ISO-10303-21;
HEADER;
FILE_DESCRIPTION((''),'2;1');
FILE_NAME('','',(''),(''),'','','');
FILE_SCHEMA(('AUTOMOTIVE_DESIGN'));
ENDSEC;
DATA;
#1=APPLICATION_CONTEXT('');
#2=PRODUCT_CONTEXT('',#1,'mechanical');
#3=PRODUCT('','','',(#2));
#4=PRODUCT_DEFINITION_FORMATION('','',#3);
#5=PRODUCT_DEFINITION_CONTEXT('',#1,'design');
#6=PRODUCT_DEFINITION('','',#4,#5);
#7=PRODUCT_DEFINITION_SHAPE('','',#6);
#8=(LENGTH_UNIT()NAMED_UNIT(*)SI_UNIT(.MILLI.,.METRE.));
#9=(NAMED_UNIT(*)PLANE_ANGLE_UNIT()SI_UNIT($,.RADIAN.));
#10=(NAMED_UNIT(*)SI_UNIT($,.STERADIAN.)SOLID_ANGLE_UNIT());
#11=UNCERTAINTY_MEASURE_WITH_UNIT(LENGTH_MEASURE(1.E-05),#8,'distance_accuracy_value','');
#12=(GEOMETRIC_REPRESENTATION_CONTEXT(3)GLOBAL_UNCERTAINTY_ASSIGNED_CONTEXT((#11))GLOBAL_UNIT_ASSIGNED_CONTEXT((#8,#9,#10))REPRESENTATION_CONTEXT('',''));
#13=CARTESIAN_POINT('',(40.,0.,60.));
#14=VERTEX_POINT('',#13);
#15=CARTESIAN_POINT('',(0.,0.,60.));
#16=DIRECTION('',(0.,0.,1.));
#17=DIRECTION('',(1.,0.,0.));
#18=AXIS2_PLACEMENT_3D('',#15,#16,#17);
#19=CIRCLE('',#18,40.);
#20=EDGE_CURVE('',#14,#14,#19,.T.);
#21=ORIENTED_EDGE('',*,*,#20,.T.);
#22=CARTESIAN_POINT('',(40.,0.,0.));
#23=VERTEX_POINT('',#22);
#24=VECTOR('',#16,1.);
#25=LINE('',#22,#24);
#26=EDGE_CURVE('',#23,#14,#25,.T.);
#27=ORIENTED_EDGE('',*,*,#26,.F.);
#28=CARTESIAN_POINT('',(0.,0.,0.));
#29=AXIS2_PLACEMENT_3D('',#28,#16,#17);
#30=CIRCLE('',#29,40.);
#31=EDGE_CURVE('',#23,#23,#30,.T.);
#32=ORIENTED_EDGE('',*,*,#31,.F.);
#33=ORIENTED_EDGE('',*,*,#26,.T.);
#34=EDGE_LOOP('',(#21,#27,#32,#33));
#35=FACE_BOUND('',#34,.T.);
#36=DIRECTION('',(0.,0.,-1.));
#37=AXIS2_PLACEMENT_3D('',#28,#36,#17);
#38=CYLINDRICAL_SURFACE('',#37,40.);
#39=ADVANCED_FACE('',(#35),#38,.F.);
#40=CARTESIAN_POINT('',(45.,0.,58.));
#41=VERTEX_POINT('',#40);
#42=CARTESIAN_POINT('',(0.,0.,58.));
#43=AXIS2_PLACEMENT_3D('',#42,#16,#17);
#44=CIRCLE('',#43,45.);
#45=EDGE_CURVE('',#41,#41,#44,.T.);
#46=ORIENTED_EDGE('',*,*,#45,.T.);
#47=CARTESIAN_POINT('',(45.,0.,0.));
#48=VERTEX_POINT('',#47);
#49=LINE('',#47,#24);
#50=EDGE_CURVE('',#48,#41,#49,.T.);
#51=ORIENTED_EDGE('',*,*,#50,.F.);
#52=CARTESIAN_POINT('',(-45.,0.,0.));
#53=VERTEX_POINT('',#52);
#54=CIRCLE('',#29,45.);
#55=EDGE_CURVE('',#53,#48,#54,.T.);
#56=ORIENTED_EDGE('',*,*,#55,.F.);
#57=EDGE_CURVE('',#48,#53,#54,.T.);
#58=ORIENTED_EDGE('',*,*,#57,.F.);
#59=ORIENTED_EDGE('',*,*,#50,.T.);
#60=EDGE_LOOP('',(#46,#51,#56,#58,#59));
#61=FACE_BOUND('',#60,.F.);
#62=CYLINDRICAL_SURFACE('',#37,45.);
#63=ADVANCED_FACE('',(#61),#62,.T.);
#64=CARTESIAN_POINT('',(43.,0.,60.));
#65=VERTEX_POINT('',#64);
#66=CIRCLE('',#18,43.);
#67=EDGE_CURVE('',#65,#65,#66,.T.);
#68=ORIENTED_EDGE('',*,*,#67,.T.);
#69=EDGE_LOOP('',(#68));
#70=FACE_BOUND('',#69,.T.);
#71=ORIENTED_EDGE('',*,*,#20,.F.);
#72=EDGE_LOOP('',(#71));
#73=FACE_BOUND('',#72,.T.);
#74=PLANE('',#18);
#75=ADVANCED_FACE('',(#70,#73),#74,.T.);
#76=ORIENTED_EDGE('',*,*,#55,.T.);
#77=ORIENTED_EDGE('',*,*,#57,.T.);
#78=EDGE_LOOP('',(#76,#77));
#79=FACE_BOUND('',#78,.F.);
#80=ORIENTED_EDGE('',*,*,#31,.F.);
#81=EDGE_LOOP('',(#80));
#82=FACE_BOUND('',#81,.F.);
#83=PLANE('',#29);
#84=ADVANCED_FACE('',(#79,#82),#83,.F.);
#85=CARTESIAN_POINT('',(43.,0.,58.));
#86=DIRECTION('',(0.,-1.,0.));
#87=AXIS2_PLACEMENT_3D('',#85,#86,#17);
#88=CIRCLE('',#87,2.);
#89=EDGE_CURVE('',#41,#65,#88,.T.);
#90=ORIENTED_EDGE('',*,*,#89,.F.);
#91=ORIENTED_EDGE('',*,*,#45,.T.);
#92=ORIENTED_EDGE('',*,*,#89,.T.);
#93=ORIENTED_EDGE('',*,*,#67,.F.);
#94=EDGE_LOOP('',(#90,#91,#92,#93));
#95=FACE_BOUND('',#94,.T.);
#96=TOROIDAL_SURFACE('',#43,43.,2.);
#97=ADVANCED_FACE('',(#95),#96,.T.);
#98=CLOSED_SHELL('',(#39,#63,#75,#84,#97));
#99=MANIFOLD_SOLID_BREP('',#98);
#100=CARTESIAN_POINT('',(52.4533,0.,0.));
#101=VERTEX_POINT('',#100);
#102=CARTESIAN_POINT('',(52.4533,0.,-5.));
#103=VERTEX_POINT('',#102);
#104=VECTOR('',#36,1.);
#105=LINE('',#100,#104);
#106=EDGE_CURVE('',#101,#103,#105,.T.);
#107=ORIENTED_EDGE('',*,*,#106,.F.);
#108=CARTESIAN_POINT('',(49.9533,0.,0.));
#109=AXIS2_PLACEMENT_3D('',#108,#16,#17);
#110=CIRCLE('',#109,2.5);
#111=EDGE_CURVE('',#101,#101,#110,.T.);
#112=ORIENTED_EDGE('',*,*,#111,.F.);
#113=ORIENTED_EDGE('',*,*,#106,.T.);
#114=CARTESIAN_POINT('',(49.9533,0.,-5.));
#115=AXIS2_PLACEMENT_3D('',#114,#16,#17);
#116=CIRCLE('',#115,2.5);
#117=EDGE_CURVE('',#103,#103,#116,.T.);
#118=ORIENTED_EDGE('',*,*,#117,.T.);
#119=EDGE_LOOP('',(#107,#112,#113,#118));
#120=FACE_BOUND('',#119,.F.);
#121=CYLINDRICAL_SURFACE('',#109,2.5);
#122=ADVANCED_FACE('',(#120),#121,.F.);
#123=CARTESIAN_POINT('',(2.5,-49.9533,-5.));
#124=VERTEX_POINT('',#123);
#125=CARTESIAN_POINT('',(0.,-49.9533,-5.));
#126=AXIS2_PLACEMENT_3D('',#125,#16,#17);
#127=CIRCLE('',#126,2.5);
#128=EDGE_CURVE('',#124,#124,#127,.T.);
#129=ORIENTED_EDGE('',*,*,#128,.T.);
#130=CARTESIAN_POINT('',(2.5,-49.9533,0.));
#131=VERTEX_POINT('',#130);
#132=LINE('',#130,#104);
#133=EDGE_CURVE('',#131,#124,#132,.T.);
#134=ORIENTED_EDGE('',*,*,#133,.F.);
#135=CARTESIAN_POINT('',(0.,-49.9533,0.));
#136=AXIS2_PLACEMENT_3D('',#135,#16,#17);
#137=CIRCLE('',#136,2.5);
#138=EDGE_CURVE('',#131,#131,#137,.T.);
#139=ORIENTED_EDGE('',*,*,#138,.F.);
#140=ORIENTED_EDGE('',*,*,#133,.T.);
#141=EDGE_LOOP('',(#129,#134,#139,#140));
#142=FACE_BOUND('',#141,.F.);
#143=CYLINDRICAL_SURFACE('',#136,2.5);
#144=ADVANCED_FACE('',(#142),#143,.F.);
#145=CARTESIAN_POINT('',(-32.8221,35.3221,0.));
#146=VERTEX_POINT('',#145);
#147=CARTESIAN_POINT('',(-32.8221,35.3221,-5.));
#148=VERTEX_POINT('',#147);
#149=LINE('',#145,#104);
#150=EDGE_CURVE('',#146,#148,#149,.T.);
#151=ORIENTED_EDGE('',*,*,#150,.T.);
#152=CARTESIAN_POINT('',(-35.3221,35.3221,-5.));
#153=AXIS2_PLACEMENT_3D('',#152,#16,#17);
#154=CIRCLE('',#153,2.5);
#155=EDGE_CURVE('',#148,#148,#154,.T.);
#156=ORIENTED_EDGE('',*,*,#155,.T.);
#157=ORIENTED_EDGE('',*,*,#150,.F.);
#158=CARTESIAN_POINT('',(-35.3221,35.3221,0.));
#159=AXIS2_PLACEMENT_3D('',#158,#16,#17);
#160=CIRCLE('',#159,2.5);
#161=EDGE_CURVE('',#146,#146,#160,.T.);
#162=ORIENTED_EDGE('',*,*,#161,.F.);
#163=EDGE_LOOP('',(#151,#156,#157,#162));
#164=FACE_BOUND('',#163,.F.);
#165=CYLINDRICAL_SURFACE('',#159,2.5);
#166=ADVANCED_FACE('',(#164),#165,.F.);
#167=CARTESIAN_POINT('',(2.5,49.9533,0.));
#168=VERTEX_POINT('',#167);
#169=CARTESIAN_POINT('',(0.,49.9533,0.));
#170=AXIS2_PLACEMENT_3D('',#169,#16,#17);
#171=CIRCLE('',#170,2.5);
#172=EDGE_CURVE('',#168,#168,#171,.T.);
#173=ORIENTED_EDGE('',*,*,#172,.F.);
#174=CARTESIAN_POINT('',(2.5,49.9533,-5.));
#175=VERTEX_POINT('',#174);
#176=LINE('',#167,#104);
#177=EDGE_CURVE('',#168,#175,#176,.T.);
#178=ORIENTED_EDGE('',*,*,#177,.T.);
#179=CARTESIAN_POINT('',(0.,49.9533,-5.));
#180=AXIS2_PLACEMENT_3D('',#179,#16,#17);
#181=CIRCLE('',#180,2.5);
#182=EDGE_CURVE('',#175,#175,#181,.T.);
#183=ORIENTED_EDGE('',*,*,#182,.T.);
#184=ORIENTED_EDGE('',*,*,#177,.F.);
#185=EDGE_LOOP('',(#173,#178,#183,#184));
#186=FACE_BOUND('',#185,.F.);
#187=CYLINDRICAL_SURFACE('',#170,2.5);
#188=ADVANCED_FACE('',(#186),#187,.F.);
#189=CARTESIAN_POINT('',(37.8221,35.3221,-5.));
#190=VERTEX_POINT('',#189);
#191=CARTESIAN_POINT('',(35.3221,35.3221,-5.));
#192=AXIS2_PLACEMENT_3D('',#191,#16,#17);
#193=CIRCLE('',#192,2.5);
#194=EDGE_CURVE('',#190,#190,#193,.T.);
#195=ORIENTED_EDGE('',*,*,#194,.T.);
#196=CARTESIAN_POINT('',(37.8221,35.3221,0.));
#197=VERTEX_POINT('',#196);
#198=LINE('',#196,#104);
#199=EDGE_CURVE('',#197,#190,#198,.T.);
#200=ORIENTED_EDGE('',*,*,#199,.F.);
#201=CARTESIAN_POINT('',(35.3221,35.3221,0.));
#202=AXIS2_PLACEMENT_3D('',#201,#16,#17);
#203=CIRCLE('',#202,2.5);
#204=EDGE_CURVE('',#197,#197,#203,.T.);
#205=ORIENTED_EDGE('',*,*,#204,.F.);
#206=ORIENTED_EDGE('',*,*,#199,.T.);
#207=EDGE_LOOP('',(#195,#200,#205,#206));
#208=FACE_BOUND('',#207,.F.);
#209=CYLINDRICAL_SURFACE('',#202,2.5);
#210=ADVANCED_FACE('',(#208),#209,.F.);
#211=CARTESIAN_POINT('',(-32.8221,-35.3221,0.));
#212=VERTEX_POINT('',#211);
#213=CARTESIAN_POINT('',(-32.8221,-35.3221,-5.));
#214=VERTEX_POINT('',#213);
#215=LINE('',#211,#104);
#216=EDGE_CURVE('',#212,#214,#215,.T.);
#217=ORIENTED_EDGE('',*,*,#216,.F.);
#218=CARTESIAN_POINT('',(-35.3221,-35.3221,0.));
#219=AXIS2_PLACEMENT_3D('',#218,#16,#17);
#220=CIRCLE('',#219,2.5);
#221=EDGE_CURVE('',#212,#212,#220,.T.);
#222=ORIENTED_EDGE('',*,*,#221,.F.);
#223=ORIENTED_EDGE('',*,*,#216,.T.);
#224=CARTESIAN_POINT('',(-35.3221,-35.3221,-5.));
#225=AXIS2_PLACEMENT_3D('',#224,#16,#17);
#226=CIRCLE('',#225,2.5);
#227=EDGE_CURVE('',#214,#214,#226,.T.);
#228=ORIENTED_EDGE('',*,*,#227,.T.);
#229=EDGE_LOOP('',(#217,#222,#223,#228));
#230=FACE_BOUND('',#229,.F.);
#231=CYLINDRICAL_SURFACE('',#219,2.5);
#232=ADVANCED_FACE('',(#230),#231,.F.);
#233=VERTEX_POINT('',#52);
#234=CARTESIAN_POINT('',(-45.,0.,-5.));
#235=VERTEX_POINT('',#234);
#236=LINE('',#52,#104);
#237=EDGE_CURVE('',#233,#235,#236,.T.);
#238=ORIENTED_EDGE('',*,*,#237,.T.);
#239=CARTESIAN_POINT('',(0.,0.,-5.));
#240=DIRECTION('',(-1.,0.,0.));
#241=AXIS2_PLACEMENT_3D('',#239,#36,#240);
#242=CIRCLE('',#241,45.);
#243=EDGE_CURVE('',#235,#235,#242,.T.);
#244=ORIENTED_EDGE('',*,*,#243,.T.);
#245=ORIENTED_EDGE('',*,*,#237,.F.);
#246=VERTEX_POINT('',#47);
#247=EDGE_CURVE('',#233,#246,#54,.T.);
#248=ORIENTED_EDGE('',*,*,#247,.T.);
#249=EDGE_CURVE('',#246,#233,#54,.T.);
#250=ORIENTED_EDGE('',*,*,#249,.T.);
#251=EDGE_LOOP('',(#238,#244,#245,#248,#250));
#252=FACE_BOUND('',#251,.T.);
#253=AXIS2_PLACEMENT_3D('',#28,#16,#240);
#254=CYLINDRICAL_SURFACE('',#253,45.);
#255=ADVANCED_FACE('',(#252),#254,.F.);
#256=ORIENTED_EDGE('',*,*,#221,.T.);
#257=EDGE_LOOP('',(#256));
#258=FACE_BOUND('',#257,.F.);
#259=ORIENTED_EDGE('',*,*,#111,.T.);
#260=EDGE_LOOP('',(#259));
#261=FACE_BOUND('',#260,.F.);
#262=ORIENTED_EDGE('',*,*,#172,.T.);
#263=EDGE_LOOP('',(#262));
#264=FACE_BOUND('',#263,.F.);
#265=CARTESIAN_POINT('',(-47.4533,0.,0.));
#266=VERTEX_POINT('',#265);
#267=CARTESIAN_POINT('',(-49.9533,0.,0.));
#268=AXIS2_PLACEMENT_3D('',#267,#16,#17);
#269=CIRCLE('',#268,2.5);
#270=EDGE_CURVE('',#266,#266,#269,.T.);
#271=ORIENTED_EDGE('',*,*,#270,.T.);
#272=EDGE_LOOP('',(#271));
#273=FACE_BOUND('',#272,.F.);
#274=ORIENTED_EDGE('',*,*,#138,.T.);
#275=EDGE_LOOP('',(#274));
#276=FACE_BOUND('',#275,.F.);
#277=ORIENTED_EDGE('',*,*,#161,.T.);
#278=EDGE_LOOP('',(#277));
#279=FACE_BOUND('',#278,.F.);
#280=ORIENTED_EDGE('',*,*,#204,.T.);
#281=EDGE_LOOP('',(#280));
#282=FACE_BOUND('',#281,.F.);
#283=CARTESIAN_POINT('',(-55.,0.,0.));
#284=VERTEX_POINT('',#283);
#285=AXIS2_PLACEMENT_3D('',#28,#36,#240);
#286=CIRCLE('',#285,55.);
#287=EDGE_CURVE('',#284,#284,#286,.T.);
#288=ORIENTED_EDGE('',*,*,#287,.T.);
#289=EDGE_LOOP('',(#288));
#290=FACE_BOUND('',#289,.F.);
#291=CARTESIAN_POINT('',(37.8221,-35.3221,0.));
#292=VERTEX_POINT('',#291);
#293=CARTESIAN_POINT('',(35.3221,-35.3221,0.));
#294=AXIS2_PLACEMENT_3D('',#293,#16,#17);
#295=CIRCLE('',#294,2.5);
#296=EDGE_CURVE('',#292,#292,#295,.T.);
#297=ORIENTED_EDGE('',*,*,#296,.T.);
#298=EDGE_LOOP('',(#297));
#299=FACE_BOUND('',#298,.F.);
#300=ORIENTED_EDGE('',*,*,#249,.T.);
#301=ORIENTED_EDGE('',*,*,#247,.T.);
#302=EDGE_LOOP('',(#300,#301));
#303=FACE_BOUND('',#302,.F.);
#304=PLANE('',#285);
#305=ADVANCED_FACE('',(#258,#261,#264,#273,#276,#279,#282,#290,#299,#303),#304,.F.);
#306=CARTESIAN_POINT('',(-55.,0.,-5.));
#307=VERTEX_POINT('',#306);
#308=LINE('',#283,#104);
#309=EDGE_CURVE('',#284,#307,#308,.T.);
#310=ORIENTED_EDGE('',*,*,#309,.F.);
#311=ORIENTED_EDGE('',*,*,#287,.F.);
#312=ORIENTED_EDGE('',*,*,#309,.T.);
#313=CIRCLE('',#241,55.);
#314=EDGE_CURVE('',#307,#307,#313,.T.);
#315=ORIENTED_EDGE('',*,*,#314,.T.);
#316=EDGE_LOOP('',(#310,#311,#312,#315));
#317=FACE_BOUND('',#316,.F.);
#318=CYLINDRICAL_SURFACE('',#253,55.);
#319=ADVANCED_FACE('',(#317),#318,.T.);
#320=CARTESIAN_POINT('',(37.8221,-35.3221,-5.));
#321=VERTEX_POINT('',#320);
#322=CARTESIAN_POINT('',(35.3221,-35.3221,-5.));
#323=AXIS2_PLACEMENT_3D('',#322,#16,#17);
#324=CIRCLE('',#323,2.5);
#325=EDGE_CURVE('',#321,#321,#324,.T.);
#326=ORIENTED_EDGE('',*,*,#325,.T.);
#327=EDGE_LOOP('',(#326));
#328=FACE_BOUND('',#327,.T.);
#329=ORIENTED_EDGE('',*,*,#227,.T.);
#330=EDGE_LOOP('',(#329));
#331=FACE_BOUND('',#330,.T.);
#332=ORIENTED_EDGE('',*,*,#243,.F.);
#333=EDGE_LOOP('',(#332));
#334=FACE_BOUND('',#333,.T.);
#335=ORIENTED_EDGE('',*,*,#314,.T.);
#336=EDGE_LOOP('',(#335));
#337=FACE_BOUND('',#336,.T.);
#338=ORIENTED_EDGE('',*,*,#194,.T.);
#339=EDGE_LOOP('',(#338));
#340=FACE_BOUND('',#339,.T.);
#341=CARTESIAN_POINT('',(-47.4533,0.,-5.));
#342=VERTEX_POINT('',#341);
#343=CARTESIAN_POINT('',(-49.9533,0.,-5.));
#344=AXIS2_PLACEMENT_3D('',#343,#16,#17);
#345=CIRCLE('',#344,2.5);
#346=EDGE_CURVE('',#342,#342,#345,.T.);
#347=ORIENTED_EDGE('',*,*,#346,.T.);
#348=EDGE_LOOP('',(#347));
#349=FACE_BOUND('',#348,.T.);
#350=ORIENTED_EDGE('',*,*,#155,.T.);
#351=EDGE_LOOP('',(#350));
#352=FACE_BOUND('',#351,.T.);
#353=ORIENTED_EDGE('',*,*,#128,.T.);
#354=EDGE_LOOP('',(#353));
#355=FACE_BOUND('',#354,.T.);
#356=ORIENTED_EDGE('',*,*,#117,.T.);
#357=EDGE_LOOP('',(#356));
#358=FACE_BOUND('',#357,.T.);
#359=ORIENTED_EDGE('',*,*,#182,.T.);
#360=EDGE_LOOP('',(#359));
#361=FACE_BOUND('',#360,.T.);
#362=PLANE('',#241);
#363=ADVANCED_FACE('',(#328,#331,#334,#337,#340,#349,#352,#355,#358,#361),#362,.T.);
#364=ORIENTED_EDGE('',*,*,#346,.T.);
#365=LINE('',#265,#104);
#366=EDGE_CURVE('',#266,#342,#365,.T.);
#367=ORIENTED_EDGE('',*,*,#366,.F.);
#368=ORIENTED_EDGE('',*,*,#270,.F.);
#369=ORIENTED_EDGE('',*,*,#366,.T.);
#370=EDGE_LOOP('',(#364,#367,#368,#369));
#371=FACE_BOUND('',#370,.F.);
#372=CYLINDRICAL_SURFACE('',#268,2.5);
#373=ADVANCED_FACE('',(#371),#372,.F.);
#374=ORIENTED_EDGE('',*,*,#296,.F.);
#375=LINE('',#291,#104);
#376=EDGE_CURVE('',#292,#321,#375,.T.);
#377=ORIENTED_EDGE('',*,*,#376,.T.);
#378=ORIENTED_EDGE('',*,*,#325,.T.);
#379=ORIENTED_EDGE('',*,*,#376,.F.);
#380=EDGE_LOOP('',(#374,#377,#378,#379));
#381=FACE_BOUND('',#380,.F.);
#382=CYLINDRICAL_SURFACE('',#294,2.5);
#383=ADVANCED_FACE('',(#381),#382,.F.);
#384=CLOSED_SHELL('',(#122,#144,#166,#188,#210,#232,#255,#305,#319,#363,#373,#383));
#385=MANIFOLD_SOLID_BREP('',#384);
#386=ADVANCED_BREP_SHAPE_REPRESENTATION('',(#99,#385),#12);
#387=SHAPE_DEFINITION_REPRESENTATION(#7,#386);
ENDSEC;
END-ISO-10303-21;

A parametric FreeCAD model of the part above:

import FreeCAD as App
import Part
import Sketcher
from FreeCAD import Vector


def edges_at(feature, points):
    """Names of the edges that pass closest to the given points."""
    edges = feature.Shape.Edges
    near = lambda p: min(range(len(edges)), key=lambda i: edges[i].distToShape(Part.Vertex(*p))[0])
    return sorted({f"Edge{near(p) + 1}" for p in points})

doc = App.newDocument("Part")
params = doc.addObject("Spreadsheet::Sheet", "Params")
for row, (alias, value) in enumerate([
    ("sketch1_diameter", "80 mm"),
    ("sketch1_diameter2", "90 mm"),
    ("pad1_length", "60 mm"),
    ("fillet_radius", "2 mm"),
    ("sketch2_diameter", "110 mm"),
    ("sketch2_diameter2", "90 mm"),
    ("pad2_length", "5 mm"),
    ("sketch3_diameter", "5 mm"),
    ("sketch4_diameter", "5 mm"),
], start=1):
    params.set(f"A{row}", alias)
    params.set(f"B{row}", "=" + value)
    params.setAlias(f"B{row}", alias)

body = doc.addObject("PartDesign::Body", "Body")
body.AllowCompound = True

sketch1 = body.newObject("Sketcher::SketchObject", "Sketch")
sketch1.AttachmentSupport = (doc.getObject("XY_Plane"), [""])
sketch1.MapMode = "FlatFace"
sketch1.addGeometry([
    Part.Circle(Vector(0, 0, 0), Vector(0, 0, 1), 45),
    Part.Circle(Vector(0, 0, 0), Vector(0, 0, 1), 40),
], False)
sketch1.addConstraint([
    Sketcher.Constraint("Coincident", 0, 3, -1, 1),
    Sketcher.Constraint("Coincident", 1, 3, -1, 1),
    Sketcher.Constraint("Diameter", 1, 80.0),
    Sketcher.Constraint("Diameter", 0, 90.0),
])
sketch1.setExpression("Constraints[2]", "Params.sketch1_diameter")
sketch1.setExpression("Constraints[3]", "Params.sketch1_diameter2")
pad1 = body.newObject("PartDesign::Pad", "Pad")
pad1.Profile = sketch1
pad1.setExpression("Length", "Params.pad1_length")
doc.recompute()

fillet = body.newObject("PartDesign::Fillet", "Fillet")
fillet.Base = (pad1, edges_at(pad1, [(-45, 0, 60)]))
fillet.setExpression("Radius", "Params.fillet_radius")

sketch2 = body.newObject("Sketcher::SketchObject", "Sketch001")
sketch2.AttachmentSupport = (doc.getObject("XY_Plane"), [""])
sketch2.MapMode = "FlatFace"
sketch2.addGeometry([
    Part.Circle(Vector(0, 0, 0), Vector(0, 0, 1), 55),
    Part.Circle(Vector(0, 0, 0), Vector(0, 0, 1), 45),
], False)
sketch2.addConstraint([
    Sketcher.Constraint("Coincident", 0, 3, -1, 1),
    Sketcher.Constraint("Coincident", 1, 3, -1, 1),
    Sketcher.Constraint("Diameter", 0, 110.0),
    Sketcher.Constraint("Diameter", 1, 90.0),
])
sketch2.setExpression("Constraints[2]", "Params.sketch2_diameter")
sketch2.setExpression("Constraints[3]", "Params.sketch2_diameter2")
pad2 = body.newObject("PartDesign::Pad", "Pad001")
pad2.Profile = sketch2
pad2.setExpression("Length", "Params.pad2_length")
pad2.Reversed = True

sketch3 = body.newObject("Sketcher::SketchObject", "Sketch002")
sketch3.AttachmentSupport = (doc.getObject("XY_Plane"), [""])
sketch3.MapMode = "FlatFace"
sketch3.addGeometry([
    Part.Circle(Vector(0, -50, 0), Vector(0, 0, 1), 2.5),
    Part.Circle(Vector(50, 0, 0), Vector(0, 0, 1), 2.5),
    Part.Circle(Vector(0, 50, 0), Vector(0, 0, 1), 2.5),
    Part.Circle(Vector(-50, 0, 0), Vector(0, 0, 1), 2.5),
], False)
sketch3.addConstraint([
    Sketcher.Constraint("Equal", 0, 1),
    Sketcher.Constraint("Equal", 1, 2),
    Sketcher.Constraint("Equal", 2, 3),
    Sketcher.Constraint("Symmetric", 0, 3, 2, 3, -1, 1),
    Sketcher.Constraint("Symmetric", 1, 3, 3, 3, -1, 1),
    Sketcher.Constraint("PointOnObject", 0, 3, -2),
    Sketcher.Constraint("PointOnObject", 1, 3, -1),
    Sketcher.Constraint("Diameter", 0, 5.0),
    Sketcher.Constraint("DistanceY", 0, 3, -1, 1, 49.9533),
    Sketcher.Constraint("DistanceX", -1, 1, 1, 3, 49.9533),
])
sketch3.setExpression("Constraints[7]", "Params.sketch3_diameter")
pocket1 = body.newObject("PartDesign::Pocket", "Pocket")
pocket1.Profile = sketch3
pocket1.Type = "ThroughAll"

sketch4 = body.newObject("Sketcher::SketchObject", "Sketch003")
sketch4.AttachmentSupport = (doc.getObject("XY_Plane"), [""])
sketch4.MapMode = "FlatFace"
sketch4.addGeometry([
    Part.Circle(Vector(35.3, 35.3, 0), Vector(0, 0, 1), 2.5),
    Part.Circle(Vector(35.3, -35.3, 0), Vector(0, 0, 1), 2.5),
    Part.Circle(Vector(-35.3, -35.3, 0), Vector(0, 0, 1), 2.5),
    Part.Circle(Vector(-35.3, 35.3, 0), Vector(0, 0, 1), 2.5),
], False)
sketch4.addConstraint([
    Sketcher.Constraint("Equal", 0, 1),
    Sketcher.Constraint("Equal", 1, 2),
    Sketcher.Constraint("Equal", 2, 3),
    Sketcher.Constraint("Symmetric", 0, 3, 2, 3, -1, 1),
    Sketcher.Constraint("Symmetric", 1, 3, 3, 3, -1, 1),
    Sketcher.Constraint("Symmetric", 1, 3, 2, 3, -2),
    Sketcher.Constraint("Diameter", 0, 5.0),
    Sketcher.Constraint("DistanceX", -1, 1, 0, 3, 35.322),
    Sketcher.Constraint("DistanceY", -1, 1, 0, 3, 35.322),
])
sketch4.setExpression("Constraints[6]", "Params.sketch4_diameter")
pocket2 = body.newObject("PartDesign::Pocket", "Pocket001")
pocket2.Profile = sketch4
pocket2.Type = "ThroughAll"

doc.recompute()
